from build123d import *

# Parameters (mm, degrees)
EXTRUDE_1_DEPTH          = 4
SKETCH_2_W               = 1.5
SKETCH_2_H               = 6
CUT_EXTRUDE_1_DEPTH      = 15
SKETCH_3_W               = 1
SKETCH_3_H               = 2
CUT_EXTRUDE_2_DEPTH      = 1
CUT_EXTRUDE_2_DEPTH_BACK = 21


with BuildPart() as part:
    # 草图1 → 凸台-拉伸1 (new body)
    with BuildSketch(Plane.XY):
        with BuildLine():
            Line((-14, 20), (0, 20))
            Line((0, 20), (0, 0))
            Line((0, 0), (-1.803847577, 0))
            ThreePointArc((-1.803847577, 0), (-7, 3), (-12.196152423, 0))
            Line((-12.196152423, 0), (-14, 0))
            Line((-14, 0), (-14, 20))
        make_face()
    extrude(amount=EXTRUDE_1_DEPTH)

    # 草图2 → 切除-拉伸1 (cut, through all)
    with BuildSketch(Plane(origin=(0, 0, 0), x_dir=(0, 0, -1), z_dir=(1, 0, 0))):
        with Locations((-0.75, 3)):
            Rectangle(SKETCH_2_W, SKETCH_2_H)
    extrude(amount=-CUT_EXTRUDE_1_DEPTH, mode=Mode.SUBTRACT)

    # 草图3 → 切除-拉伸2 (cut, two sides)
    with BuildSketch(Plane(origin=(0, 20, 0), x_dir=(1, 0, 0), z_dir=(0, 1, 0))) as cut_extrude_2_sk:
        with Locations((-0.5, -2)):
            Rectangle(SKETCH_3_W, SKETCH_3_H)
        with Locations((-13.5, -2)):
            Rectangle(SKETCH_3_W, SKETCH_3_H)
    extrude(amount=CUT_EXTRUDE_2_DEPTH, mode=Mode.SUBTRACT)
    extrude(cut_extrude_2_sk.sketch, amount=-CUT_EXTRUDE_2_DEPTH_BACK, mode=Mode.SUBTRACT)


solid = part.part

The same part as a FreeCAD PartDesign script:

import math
import FreeCAD as App
import Part
import Sketcher

doc = App.newDocument("Part")
body = doc.addObject("PartDesign::Body", "Body")

# Sketch on XY plane
sketch1 = doc.addObject("Sketcher::SketchObject", "Sketch")
body.addObject(sketch1)
sketch1.AttachmentSupport = (doc.XY_Plane, [""])
sketch1.MapMode = "FlatFace"
sketch1.addGeometry([
    Part.LineSegment(App.Vector(0, 20, 0), App.Vector(-14, 20, 0)),  # 0
    Part.LineSegment(App.Vector(-14, 20, 0), App.Vector(-14, 0, 0)),  # 1
    Part.LineSegment(App.Vector(-14, 0, 0), App.Vector(-12.2, 0, 0)),  # 2
    Part.ArcOfCircle(Part.Circle(App.Vector(-7, -3, 0), App.Vector(0, 0, 1), 6), math.radians(30), math.radians(150)),  # 3
    Part.LineSegment(App.Vector(-1.8, 0, 0), App.Vector(0, 0, 0)),  # 4
    Part.LineSegment(App.Vector(0, 0, 0), App.Vector(0, 20, 0)),  # 5
], False)
sketch1.addConstraint([
    Sketcher.Constraint("Coincident", 0, 2, 1, 1),
    Sketcher.Constraint("Coincident", 1, 2, 2, 1),
    Sketcher.Constraint("Coincident", 2, 2, 3, 2),
    Sketcher.Constraint("Coincident", 3, 1, 4, 1),
    Sketcher.Constraint("Coincident", 4, 2, 5, 1),
    Sketcher.Constraint("Coincident", 5, 2, 0, 1),
    Sketcher.Constraint("Horizontal", 0),
    Sketcher.Constraint("Vertical", 1),
    Sketcher.Constraint("Horizontal", 2),
    Sketcher.Constraint("Horizontal", 4),
    Sketcher.Constraint("Vertical", 5),
    Sketcher.Constraint("Coincident", 4, 2, -1, 1),
    Sketcher.Constraint("PointOnObject", 1, 2, -1),
    Sketcher.Constraint("Equal", 2, 4),
    Sketcher.Constraint("Radius", 3, 6.0),
    Sketcher.Constraint("DistanceX", 0, 2, 0, 1, 14.0),
    Sketcher.Constraint("DistanceY", 1, 2, 1, 1, 20.0),
    Sketcher.Constraint("DistanceY", 3, 3, -1, 1, 3.0),
])
pad1 = doc.addObject("PartDesign::Pad", "Pad")
body.addObject(pad1)
pad1.Profile = sketch1
pad1.Length = 4

# Sketch on YZ plane
sketch2 = doc.addObject("Sketcher::SketchObject", "Sketch001")
body.addObject(sketch2)
sketch2.AttachmentSupport = (doc.YZ_Plane, [""])
sketch2.MapMode = "FlatFace"
sketch2.addGeometry([
    Part.LineSegment(App.Vector(6, 1.5, 0), App.Vector(0, 1.5, 0)),
    Part.LineSegment(App.Vector(0, 1.5, 0), App.Vector(0, 0, 0)),
    Part.LineSegment(App.Vector(0, 0, 0), App.Vector(6, 0, 0)),
    Part.LineSegment(App.Vector(6, 0, 0), App.Vector(6, 1.5, 0)),
], False)
sketch2.addConstraint([
    Sketcher.Constraint("Coincident", 0, 2, 1, 1),
    Sketcher.Constraint("Coincident", 1, 2, 2, 1),
    Sketcher.Constraint("Coincident", 2, 2, 3, 1),
    Sketcher.Constraint("Coincident", 3, 2, 0, 1),
    Sketcher.Constraint("Horizontal", 0),
    Sketcher.Constraint("Vertical", 1),
    Sketcher.Constraint("Horizontal", 2),
    Sketcher.Constraint("Vertical", 3),
    Sketcher.Constraint("Coincident", 1, 2, -1, 1),
    Sketcher.Constraint("DistanceX", 0, 2, 0, 1, 6.0),
    Sketcher.Constraint("DistanceY", 1, 2, 1, 1, 1.5),
])
pocket1 = doc.addObject("PartDesign::Pocket", "Pocket")
body.addObject(pocket1)
pocket1.Profile = sketch2
pocket1.Type = "ThroughAll"

# Sketch on XZ plane
sketch3 = doc.addObject("Sketcher::SketchObject", "Sketch002")
body.addObject(sketch3)
sketch3.AttachmentSupport = (doc.XZ_Plane, [""])
sketch3.MapMode = "FlatFace"
sketch3.AttachmentOffset = App.Placement(App.Vector(0, 0, -20), App.Rotation())
sketch3.addGeometry([
    Part.LineSegment(App.Vector(-1, 1, 0), App.Vector(-1, 3, 0)),  # 0
    Part.LineSegment(App.Vector(-1, 3, 0), App.Vector(0, 3, 0)),  # 1
    Part.LineSegment(App.Vector(0, 3, 0), App.Vector(0, 1, 0)),  # 2
    Part.LineSegment(App.Vector(0, 1, 0), App.Vector(-1, 1, 0)),  # 3
    Part.LineSegment(App.Vector(-14, 1, 0), App.Vector(-14, 3, 0)),  # 4
    Part.LineSegment(App.Vector(-14, 3, 0), App.Vector(-13, 3, 0)),  # 5
    Part.LineSegment(App.Vector(-13, 3, 0), App.Vector(-13, 1, 0)),  # 6
    Part.LineSegment(App.Vector(-13, 1, 0), App.Vector(-14, 1, 0)),  # 7
], False)
sketch3.addConstraint([
    Sketcher.Constraint("Coincident", 0, 2, 1, 1),
    Sketcher.Constraint("Coincident", 1, 2, 2, 1),
    Sketcher.Constraint("Coincident", 2, 2, 3, 1),
    Sketcher.Constraint("Coincident", 3, 2, 0, 1),
    Sketcher.Constraint("Coincident", 4, 2, 5, 1),
    Sketcher.Constraint("Coincident", 5, 2, 6, 1),
    Sketcher.Constraint("Coincident", 6, 2, 7, 1),
    Sketcher.Constraint("Coincident", 7, 2, 4, 1),
    Sketcher.Constraint("Vertical", 0),
    Sketcher.Constraint("Horizontal", 1),
    Sketcher.Constraint("Vertical", 2),
    Sketcher.Constraint("Horizontal", 3),
    Sketcher.Constraint("Vertical", 4),
    Sketcher.Constraint("Horizontal", 5),
    Sketcher.Constraint("Vertical", 6),
    Sketcher.Constraint("Horizontal", 7),
    Sketcher.Constraint("PointOnObject", 1, 2, -2),
    Sketcher.Constraint("Horizontal", 1, 2, 4, 2),
    Sketcher.Constraint("Horizontal", 3, 2, 6, 2),
    Sketcher.Constraint("Equal", 3, 5),
    Sketcher.Constraint("DistanceX", 1, 1, 1, 2, 1.0),
    Sketcher.Constraint("DistanceY", 0, 1, 0, 2, 2.0),
    Sketcher.Constraint("DistanceY", -1, 1, 0, 2, 3.0),
    Sketcher.Constraint("DistanceX", 4, 2, -1, 1, 14.0),
])
pocket2 = doc.addObject("PartDesign::Pocket", "Pocket001")
body.addObject(pocket2)
pocket2.Profile = sketch3
pocket2.Type = "ThroughAll"
pocket2.Midplane = True

doc.recompute()
